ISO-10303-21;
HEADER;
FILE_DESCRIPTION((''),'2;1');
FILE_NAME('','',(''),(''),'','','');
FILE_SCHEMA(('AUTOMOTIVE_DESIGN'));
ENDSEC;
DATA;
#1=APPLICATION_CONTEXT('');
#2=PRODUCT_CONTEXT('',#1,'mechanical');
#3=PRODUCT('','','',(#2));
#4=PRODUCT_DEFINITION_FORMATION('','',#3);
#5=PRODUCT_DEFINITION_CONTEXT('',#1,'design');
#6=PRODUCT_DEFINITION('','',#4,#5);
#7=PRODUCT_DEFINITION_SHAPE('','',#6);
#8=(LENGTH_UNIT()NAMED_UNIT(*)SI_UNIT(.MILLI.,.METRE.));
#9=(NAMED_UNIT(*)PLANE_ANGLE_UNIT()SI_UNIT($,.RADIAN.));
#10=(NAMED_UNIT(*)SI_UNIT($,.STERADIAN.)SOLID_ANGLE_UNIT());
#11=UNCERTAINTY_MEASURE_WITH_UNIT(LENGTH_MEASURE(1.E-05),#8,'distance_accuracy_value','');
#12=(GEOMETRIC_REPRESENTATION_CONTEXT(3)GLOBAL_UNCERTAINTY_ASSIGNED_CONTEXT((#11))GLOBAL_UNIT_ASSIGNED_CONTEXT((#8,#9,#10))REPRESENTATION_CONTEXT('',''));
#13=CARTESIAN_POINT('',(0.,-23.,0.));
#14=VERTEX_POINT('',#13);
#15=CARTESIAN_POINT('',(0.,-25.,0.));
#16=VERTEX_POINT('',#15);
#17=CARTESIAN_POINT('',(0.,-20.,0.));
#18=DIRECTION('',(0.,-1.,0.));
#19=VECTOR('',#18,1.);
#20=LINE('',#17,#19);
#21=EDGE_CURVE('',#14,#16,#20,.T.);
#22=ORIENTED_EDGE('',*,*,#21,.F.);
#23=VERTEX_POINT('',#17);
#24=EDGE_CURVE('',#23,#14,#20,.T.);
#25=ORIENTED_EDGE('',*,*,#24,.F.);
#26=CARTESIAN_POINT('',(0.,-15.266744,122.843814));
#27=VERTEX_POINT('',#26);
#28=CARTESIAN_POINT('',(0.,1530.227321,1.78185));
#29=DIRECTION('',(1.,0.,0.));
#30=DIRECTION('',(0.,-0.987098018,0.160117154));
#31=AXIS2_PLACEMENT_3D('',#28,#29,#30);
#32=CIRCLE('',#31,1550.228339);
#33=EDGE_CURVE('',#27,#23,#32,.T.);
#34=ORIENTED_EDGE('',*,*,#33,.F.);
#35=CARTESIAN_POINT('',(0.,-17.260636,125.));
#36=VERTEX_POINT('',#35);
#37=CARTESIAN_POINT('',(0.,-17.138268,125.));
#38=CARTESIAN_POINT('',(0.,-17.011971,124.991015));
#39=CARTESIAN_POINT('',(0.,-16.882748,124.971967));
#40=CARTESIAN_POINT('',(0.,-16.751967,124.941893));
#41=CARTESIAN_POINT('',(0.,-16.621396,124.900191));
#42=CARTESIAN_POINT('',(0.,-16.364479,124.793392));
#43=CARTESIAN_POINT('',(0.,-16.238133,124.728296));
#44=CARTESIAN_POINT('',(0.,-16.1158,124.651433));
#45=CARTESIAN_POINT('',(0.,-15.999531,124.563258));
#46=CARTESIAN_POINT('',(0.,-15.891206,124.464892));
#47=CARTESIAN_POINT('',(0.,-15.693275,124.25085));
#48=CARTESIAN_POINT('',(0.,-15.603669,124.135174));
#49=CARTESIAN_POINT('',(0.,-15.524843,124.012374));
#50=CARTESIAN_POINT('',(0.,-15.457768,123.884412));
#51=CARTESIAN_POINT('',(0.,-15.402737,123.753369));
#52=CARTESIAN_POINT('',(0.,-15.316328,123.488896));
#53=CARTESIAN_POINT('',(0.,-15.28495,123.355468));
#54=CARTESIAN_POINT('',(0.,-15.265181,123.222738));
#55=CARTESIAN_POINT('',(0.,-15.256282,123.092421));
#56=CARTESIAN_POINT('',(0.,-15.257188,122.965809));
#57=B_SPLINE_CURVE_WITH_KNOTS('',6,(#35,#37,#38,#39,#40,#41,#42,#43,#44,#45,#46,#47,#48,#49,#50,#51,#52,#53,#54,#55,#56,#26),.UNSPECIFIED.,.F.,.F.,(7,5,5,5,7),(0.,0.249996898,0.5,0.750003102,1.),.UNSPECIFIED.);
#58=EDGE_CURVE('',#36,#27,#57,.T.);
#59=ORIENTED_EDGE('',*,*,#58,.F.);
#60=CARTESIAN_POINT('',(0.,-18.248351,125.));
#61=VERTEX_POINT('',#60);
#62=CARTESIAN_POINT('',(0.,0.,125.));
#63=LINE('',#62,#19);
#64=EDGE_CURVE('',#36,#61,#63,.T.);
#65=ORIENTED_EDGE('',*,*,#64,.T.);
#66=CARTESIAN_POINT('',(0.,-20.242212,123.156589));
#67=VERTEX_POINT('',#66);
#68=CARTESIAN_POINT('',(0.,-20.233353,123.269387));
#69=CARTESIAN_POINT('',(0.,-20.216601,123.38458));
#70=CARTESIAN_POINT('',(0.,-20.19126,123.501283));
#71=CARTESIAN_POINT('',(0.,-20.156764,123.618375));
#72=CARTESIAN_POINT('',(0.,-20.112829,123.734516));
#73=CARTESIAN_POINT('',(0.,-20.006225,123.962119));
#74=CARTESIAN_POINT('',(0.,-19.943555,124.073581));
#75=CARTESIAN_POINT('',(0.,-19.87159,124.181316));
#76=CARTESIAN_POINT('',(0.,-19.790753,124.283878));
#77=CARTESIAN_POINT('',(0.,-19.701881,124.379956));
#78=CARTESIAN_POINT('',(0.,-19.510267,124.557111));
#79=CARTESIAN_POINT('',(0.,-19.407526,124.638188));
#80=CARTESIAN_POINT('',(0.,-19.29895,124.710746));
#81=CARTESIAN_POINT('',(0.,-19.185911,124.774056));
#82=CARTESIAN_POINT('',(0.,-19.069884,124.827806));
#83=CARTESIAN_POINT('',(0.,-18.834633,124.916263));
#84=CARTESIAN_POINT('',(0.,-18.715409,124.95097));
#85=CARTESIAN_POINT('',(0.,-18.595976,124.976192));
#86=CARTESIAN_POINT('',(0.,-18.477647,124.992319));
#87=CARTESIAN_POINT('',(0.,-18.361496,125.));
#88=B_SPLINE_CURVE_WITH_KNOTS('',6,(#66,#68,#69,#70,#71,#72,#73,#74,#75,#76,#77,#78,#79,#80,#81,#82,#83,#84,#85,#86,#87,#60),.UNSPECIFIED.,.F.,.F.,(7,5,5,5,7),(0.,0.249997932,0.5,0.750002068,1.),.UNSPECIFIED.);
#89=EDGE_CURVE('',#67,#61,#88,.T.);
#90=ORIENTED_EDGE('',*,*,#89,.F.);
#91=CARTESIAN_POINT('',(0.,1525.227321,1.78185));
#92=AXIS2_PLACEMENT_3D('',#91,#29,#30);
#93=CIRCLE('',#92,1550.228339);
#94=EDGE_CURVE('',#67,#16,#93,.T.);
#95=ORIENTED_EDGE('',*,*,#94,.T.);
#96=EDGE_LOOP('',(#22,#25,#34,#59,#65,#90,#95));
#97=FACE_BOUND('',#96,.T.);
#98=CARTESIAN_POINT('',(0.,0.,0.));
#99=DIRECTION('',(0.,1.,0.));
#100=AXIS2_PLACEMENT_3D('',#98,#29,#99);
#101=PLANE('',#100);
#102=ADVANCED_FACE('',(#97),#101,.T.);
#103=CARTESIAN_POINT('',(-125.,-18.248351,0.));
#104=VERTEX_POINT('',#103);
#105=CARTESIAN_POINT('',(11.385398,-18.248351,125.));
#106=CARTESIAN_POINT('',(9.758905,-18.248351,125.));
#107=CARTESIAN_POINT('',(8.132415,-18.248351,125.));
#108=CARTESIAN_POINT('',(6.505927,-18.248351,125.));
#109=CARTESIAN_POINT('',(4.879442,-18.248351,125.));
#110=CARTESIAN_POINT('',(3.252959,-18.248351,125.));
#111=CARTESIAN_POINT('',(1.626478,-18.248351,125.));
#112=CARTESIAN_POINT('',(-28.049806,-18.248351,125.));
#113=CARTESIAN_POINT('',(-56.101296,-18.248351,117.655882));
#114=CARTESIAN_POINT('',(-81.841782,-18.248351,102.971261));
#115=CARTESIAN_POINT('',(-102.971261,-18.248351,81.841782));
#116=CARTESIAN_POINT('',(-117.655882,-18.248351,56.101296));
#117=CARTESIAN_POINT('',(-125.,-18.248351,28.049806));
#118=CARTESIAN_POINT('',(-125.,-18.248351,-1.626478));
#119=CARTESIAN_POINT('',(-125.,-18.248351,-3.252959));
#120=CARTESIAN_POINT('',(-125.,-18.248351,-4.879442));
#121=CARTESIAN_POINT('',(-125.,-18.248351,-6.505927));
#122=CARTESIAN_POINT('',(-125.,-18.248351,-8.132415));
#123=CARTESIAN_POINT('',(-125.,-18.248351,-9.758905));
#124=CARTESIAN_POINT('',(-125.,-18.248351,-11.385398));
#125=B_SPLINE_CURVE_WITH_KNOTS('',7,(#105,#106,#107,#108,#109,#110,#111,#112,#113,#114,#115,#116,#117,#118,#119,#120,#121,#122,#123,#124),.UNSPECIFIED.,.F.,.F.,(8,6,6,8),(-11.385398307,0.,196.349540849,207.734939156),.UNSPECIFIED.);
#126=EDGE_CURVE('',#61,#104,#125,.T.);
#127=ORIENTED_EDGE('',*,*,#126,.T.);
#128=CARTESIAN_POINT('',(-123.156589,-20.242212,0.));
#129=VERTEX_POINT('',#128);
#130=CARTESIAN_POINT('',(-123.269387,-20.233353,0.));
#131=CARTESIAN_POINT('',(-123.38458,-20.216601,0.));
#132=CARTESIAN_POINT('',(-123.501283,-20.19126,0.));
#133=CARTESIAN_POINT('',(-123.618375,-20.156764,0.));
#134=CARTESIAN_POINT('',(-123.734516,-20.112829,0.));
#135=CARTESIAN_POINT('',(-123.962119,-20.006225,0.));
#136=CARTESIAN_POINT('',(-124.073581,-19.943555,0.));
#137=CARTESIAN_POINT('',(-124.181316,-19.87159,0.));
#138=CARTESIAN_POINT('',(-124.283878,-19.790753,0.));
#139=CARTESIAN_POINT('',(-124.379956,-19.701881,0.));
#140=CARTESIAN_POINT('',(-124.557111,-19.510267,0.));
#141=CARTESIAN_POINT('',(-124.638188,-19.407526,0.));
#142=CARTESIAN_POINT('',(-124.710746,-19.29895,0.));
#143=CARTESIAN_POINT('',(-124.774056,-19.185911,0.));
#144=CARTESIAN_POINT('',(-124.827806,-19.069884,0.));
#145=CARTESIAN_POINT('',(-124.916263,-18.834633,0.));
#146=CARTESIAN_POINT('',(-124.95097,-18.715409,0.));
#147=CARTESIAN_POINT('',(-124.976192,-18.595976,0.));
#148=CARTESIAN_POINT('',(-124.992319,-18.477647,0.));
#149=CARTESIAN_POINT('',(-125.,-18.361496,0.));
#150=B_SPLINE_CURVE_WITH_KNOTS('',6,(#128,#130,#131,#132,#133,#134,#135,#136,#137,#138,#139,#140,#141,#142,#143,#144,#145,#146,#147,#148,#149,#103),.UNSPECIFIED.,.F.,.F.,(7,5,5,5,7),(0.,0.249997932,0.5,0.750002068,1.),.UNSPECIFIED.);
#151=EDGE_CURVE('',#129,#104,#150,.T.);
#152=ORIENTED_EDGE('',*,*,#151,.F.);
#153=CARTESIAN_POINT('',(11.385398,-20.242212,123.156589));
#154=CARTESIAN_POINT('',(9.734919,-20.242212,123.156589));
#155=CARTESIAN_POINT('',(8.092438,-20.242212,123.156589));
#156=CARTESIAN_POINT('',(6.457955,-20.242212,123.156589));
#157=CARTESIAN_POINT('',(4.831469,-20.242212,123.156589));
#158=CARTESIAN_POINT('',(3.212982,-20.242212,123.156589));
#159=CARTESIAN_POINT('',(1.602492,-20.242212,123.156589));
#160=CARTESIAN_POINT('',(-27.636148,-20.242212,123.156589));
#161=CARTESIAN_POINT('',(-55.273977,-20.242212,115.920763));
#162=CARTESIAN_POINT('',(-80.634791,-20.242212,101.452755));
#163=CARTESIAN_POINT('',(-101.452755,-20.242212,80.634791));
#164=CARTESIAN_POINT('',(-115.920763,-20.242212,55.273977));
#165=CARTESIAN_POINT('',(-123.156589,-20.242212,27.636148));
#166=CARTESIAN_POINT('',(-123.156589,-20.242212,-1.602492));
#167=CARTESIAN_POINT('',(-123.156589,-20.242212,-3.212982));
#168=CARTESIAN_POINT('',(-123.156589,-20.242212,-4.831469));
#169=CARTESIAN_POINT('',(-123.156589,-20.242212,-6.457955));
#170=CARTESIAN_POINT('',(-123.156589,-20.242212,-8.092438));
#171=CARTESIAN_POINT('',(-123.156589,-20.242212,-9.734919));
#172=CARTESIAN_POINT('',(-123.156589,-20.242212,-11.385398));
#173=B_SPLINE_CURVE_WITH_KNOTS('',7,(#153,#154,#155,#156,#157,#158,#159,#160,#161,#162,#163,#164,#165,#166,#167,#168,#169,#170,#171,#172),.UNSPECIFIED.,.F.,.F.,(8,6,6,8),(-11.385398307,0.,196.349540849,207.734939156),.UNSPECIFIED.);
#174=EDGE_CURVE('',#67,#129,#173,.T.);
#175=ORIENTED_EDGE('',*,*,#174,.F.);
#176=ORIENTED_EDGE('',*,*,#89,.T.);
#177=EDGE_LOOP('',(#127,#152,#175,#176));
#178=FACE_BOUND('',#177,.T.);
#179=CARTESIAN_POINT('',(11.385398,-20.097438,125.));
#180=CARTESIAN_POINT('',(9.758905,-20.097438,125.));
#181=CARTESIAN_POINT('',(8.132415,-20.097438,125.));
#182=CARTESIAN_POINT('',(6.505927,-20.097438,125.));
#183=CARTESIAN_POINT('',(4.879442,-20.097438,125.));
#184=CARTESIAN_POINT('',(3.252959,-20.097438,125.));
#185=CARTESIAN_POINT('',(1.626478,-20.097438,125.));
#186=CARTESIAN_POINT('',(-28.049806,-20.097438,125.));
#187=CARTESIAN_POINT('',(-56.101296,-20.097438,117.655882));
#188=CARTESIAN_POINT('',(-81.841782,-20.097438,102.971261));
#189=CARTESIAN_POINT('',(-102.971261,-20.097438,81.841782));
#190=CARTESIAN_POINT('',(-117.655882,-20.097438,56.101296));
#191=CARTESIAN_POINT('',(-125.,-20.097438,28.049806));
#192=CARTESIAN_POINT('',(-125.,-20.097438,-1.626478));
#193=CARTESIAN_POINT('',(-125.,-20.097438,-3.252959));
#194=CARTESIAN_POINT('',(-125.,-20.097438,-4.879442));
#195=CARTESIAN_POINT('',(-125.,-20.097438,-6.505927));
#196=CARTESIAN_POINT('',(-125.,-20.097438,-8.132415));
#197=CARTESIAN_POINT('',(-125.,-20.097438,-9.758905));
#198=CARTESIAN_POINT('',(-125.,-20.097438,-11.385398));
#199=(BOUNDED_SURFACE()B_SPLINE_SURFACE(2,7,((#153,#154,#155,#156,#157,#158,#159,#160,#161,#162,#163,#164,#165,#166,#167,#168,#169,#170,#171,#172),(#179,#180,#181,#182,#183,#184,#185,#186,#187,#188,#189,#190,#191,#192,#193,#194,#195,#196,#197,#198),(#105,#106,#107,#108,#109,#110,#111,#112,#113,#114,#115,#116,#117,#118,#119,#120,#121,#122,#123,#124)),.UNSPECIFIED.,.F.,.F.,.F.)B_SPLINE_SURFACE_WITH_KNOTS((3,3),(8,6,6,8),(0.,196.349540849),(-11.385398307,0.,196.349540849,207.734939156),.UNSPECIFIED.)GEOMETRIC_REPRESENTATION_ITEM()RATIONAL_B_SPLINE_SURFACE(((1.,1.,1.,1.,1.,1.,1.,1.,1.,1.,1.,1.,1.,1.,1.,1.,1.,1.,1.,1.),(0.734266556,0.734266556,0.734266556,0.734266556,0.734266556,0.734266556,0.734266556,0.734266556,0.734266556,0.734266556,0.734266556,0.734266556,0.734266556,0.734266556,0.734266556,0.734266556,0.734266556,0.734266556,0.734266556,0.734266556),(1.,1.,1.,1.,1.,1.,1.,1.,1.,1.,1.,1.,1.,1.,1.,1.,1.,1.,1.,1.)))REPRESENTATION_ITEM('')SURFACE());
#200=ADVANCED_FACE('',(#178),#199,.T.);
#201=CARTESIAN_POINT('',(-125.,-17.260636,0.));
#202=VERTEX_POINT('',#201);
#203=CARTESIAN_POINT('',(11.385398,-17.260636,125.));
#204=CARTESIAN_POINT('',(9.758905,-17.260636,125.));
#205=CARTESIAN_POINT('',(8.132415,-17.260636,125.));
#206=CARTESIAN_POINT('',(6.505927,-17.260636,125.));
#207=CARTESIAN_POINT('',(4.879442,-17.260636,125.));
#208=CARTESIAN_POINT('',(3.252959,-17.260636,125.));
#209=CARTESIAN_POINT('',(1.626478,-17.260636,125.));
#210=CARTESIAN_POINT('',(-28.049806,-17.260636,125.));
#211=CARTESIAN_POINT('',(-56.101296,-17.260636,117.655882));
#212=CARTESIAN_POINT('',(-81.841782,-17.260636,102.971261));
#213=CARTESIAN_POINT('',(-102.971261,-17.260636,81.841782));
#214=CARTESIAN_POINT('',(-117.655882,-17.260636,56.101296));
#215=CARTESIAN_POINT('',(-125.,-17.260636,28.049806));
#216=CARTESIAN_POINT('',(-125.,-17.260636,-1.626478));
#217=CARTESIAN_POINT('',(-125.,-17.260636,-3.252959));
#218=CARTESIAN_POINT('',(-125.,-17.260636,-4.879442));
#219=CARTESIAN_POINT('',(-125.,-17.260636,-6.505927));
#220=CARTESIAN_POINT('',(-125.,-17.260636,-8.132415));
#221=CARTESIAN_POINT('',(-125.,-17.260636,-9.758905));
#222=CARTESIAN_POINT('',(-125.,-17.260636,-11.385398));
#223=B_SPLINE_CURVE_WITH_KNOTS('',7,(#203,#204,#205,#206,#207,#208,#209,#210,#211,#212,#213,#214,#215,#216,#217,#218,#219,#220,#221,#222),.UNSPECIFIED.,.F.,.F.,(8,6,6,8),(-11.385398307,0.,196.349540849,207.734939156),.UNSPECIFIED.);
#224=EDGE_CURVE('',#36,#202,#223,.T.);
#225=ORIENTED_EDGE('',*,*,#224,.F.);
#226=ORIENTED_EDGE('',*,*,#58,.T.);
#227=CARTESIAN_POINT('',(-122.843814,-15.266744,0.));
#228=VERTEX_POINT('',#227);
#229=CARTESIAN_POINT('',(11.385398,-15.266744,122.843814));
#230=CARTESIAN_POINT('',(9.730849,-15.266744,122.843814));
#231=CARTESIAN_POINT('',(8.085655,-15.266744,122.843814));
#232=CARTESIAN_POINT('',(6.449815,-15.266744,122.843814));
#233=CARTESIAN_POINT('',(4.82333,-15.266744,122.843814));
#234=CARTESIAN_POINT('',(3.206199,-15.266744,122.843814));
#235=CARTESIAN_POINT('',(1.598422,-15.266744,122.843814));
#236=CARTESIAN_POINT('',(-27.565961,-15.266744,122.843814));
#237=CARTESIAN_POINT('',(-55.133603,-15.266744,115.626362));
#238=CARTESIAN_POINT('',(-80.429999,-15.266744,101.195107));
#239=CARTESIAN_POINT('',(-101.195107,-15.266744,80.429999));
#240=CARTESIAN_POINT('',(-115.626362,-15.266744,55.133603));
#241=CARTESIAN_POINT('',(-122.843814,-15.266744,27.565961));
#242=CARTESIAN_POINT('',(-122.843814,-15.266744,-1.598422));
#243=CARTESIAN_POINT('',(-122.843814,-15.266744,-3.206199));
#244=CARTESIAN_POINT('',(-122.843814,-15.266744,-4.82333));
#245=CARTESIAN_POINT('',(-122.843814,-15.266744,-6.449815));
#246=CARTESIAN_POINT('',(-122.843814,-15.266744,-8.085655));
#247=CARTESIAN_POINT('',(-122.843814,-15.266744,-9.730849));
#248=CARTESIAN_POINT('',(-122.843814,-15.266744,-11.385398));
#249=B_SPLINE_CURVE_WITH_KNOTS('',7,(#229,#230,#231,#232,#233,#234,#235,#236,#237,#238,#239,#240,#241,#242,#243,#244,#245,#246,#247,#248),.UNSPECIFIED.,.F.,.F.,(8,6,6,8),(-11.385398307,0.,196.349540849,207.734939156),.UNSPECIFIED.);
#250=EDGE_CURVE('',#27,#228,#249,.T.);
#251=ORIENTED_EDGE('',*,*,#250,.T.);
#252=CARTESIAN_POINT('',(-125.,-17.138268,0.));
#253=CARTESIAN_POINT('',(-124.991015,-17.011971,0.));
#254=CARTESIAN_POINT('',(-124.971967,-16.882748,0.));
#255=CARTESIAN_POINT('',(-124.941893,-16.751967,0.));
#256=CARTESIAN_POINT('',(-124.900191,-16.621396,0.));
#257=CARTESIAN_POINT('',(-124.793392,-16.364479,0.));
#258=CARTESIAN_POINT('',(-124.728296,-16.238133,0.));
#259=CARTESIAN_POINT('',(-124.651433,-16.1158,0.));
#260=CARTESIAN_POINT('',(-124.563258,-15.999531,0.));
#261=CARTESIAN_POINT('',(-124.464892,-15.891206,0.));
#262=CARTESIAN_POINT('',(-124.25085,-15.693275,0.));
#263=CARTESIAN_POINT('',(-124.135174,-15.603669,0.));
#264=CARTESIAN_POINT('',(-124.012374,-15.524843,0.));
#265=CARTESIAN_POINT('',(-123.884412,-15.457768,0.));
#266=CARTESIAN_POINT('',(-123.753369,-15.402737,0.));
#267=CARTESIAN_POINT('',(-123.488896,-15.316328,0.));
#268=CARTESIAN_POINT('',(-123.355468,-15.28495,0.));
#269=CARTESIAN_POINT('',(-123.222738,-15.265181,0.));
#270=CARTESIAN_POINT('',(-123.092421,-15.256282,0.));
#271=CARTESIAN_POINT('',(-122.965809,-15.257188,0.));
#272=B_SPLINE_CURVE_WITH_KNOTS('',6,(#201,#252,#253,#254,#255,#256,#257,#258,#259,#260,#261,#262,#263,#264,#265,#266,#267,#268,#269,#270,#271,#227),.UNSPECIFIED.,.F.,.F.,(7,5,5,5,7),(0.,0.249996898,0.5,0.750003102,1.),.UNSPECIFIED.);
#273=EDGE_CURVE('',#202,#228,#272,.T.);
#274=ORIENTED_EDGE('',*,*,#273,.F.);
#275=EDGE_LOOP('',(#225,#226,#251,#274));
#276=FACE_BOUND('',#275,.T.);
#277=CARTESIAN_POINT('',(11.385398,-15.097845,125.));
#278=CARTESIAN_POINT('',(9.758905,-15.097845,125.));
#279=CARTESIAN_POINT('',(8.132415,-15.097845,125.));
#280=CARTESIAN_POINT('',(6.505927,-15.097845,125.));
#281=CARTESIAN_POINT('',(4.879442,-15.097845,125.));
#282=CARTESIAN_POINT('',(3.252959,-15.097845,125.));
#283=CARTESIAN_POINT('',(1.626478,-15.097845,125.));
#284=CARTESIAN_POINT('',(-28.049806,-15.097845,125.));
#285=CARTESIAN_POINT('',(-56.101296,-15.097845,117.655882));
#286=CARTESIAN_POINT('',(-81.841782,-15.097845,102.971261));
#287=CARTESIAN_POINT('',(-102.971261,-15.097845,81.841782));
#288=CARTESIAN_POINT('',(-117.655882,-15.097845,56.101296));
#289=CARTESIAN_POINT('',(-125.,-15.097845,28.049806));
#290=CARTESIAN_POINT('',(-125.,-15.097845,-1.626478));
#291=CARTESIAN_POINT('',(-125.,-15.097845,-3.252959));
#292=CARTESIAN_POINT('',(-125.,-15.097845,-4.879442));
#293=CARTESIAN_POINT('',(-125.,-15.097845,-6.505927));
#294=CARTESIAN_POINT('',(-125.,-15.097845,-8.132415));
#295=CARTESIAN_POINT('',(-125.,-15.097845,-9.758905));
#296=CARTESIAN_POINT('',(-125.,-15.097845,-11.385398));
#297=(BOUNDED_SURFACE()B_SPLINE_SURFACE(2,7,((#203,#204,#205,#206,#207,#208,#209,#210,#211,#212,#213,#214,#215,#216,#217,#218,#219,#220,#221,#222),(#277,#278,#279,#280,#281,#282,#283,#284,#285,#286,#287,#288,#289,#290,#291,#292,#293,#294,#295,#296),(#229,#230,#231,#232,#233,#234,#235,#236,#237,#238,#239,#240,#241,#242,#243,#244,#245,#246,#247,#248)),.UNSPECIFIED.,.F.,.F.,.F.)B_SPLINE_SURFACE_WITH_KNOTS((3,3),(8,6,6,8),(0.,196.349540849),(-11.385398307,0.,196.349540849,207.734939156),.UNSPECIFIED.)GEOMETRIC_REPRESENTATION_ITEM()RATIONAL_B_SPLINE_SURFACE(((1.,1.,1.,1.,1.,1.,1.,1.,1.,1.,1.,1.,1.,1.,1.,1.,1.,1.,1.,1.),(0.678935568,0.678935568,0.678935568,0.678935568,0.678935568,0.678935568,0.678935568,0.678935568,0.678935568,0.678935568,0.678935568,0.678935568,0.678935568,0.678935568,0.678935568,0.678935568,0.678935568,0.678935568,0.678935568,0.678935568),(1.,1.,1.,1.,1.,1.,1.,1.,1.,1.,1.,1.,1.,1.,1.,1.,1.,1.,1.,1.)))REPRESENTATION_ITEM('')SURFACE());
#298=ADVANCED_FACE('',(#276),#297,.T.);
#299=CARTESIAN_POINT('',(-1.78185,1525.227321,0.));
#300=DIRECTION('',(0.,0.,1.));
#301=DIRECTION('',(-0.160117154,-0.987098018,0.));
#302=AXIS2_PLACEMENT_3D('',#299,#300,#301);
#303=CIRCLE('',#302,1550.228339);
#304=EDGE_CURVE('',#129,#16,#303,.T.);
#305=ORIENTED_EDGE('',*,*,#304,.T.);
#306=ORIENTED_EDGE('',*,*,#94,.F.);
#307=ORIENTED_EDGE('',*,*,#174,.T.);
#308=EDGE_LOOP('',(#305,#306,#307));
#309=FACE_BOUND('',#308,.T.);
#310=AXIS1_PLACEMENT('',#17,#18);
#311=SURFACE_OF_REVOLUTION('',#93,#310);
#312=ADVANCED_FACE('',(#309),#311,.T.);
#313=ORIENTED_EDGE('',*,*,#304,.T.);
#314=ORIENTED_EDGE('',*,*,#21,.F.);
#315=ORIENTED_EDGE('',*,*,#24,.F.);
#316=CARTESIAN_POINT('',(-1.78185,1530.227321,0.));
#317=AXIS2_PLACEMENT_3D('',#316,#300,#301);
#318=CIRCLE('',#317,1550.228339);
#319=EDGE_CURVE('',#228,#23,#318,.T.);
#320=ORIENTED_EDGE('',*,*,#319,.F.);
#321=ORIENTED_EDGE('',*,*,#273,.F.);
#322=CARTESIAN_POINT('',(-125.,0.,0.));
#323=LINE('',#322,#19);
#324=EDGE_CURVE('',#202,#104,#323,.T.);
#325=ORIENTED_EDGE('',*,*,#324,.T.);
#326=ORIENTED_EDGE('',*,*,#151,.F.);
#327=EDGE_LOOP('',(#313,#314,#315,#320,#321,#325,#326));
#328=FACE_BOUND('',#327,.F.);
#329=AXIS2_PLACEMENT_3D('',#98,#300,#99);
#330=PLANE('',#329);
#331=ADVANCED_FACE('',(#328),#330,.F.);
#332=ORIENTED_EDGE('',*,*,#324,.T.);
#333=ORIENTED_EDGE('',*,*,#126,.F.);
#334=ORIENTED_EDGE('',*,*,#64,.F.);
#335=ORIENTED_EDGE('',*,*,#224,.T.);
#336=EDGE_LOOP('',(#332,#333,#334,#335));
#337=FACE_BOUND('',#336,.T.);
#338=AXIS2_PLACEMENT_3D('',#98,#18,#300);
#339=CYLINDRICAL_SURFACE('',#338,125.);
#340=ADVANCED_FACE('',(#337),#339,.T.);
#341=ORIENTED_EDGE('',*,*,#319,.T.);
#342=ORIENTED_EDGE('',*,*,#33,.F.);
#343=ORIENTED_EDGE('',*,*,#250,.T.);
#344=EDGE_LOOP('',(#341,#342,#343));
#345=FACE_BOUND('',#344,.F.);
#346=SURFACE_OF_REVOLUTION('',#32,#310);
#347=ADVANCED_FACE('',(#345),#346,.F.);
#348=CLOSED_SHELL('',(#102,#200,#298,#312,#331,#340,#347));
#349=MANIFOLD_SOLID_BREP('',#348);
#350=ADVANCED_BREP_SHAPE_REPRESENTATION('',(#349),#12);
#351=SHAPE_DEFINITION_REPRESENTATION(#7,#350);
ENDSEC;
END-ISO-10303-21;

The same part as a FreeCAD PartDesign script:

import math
import FreeCAD as App
import Part
import Sketcher

V = App.Vector
Q = App.Units.Quantity


def edges_at(feature, points):
    """Names of the edges that pass closest to the given points."""
    edges = feature.Shape.Edges
    near = lambda p: min(range(len(edges)), key=lambda i: edges[i].distToShape(Part.Vertex(*p))[0])
    return sorted({f"Edge{near(p) + 1}" for p in points})

doc = App.newDocument("Part")
body = doc.addObject("PartDesign::Body", "Body")

# Sketch on YZ plane
sketch1 = body.newObject("Sketcher::SketchObject", "Sketch")
sketch1.AttachmentSupport = (doc.getObject("YZ_Plane"), [""])
sketch1.MapMode = "FlatFace"
sketch1.addGeometry([
    Part.LineSegment(V(-25, 0, 0), V(-20, 0, 0)),
    Part.ArcOfCircle(Part.Circle(V(1530, 2, 0), V(0, 0, 1), 1550), math.radians(175.44), math.radians(180.07)),
    Part.LineSegment(V(-15, 125, 0), V(-20, 125, 0)),
    Part.ArcOfCircle(Part.Circle(V(1525, 2, 0), V(0, 0, 1), 1550), math.radians(175.44), math.radians(180.07)),
], False)
sketch1.addConstraint([
    Sketcher.Constraint("Coincident", 0, 2, 1, 2),
    Sketcher.Constraint("Coincident", 1, 1, 2, 1),
    Sketcher.Constraint("Coincident", 2, 2, 3, 1),
    Sketcher.Constraint("Coincident", 3, 2, 0, 1),
    Sketcher.Constraint("Horizontal", 0),
    Sketcher.Constraint("Horizontal", 2),
    Sketcher.Constraint("Equal", 1, 3),
    Sketcher.Constraint("PointOnObject", 0, 2, -1),
    Sketcher.Constraint("Horizontal", 1, 3, 3, 3),
    Sketcher.Constraint("DistanceX", 0, 1, 0, 2, Q("5 mm")),
    Sketcher.Constraint("DistanceX", 0, 2, -1, 1, Q("20 mm")),
    Sketcher.Constraint("DistanceY", -1, 1, 2, 2, Q("125 mm")),
    Sketcher.Constraint("Radius", 1, Q("1550.2277 mm")),
    Sketcher.Constraint("DistanceY", -1, 1, 1, 3, Q("1.782 mm")),
])
revolution = body.newObject("PartDesign::Revolution", "Revolution")
revolution.Profile = sketch1
revolution.ReferenceAxis = (sketch1, ["H_Axis"])
revolution.Angle = 90
revolution.Reversed = True
doc.recompute()

fillet = body.newObject("PartDesign::Fillet", "Fillet")
fillet.Base = (revolution, edges_at(revolution, [(-88.388, -15.096, 88.388), (-88.388, -20.096, 88.388)]))
fillet.Radius = 2

doc.recompute()
